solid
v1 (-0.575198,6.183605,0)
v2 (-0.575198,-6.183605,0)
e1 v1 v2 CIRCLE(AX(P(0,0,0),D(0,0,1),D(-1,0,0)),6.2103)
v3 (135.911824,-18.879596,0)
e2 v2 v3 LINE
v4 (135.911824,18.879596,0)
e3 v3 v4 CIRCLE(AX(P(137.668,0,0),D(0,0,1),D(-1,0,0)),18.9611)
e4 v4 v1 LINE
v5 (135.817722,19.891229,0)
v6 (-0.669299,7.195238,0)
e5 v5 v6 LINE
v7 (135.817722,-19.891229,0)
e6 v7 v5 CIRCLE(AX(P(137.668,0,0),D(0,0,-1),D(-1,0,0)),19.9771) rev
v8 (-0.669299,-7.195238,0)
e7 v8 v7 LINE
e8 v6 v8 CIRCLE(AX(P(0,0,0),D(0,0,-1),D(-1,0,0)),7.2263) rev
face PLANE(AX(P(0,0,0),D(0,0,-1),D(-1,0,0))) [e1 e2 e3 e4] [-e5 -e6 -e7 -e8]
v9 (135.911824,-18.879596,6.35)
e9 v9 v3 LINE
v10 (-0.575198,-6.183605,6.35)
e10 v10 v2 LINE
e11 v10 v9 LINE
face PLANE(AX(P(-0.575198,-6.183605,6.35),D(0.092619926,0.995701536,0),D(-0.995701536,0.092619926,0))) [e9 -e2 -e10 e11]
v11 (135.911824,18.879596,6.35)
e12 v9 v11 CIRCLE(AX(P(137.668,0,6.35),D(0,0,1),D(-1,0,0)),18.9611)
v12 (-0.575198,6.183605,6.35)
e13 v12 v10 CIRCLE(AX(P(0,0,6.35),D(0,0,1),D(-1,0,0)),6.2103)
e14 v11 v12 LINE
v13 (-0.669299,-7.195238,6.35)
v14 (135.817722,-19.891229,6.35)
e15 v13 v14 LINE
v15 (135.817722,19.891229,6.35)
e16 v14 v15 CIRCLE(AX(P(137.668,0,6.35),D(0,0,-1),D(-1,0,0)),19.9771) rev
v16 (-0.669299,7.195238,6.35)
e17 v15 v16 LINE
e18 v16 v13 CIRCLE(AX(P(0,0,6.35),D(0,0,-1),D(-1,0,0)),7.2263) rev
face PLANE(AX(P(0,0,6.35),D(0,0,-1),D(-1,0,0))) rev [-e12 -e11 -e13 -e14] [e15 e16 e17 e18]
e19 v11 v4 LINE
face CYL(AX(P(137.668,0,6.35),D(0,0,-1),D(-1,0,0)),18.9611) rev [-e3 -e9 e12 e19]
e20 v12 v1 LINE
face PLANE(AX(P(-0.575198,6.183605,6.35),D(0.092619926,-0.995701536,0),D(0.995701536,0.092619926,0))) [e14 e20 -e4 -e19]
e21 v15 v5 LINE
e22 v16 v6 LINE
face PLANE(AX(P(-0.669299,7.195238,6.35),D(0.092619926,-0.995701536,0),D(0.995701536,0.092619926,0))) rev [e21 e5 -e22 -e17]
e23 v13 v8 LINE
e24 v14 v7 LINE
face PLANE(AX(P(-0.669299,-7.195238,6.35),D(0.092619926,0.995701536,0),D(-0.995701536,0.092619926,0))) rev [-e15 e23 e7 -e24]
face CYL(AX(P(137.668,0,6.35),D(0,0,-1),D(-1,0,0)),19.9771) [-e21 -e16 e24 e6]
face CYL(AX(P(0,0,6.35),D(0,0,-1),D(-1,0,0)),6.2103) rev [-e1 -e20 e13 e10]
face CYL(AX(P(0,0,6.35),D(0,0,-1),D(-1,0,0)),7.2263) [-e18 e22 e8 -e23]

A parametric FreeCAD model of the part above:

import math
import FreeCAD as App
import Part
import Sketcher
from FreeCAD import Vector
Q = App.Units.Quantity

doc = App.newDocument("Part")
body = doc.addObject("PartDesign::Body", "Body")

# Sketch on XY plane
sketch1 = body.newObject("Sketcher::SketchObject", "Sketch")
sketch1.AttachmentSupport = (doc.getObject("XY_Plane"), [""])
sketch1.MapMode = "FlatFace"
sketch1.addGeometry([
    Part.LineSegment(Vector(-0.669299, -7.195238, 0), Vector(135.817722, -19.891229, 0)),  # 0
    Part.ArcOfCircle(Part.Circle(Vector(137.668, 0, 0), Vector(0, 0, 1), 19.9771), math.radians(-95.314348), math.radians(95.314348)),  # 1
    Part.LineSegment(Vector(135.817722, 19.891229, 0), Vector(-0.669299, 7.195238, 0)),  # 2
    Part.ArcOfCircle(Part.Circle(Vector(0, 0, 0), Vector(0, 0, 1), 7.2263), math.radians(95.314348), math.radians(264.685652)),  # 3
    Part.LineSegment(Vector(135.911824, -18.879596, 0), Vector(-0.575198, -6.183605, 0)),  # 4
    Part.ArcOfCircle(Part.Circle(Vector(0, 0, 0), Vector(0, 0, 1), 6.2103), math.radians(95.314348), math.radians(264.685652)),  # 5
    Part.LineSegment(Vector(-0.575198, 6.183605, 0), Vector(135.911824, 18.879596, 0)),  # 6
    Part.ArcOfCircle(Part.Circle(Vector(137.668, 0, 0), Vector(0, 0, 1), 18.9611), math.radians(-95.314348), math.radians(95.314348)),  # 7
], False)
sketch1.addConstraint([
    Sketcher.Constraint("Tangent", 0, 2, 1, 1),
    Sketcher.Constraint("Tangent", 1, 2, 2, 1),
    Sketcher.Constraint("Tangent", 2, 2, 3, 1),
    Sketcher.Constraint("Tangent", 3, 2, 0, 1),
    Sketcher.Constraint("Tangent", 4, 2, 5, 2),
    Sketcher.Constraint("Tangent", 5, 1, 6, 1),
    Sketcher.Constraint("Tangent", 6, 2, 7, 2),
    Sketcher.Constraint("Tangent", 7, 1, 4, 1),
    Sketcher.Constraint("Coincident", 3, 3, -1, 1),
    Sketcher.Constraint("Coincident", 5, 3, -1, 1),
    Sketcher.Constraint("Coincident", 7, 3, 1, 3),
    Sketcher.Constraint("PointOnObject", 1, 3, -1),
    Sketcher.Constraint("Parallel", 0, 4),
    Sketcher.Constraint("Radius", 1, Q("0.7865 in")),
    Sketcher.Constraint("Radius", 3, Q("0.2845 in")),
    Sketcher.Constraint("Radius", 5, Q("0.2445 in")),
    Sketcher.Constraint("DistanceX", -1, 1, 1, 3, Q("5.42 in")),
])
pad1 = body.newObject("PartDesign::Pad", "Pad")
pad1.Profile = sketch1
pad1.Length = Q("0.25 in")

doc.recompute()
